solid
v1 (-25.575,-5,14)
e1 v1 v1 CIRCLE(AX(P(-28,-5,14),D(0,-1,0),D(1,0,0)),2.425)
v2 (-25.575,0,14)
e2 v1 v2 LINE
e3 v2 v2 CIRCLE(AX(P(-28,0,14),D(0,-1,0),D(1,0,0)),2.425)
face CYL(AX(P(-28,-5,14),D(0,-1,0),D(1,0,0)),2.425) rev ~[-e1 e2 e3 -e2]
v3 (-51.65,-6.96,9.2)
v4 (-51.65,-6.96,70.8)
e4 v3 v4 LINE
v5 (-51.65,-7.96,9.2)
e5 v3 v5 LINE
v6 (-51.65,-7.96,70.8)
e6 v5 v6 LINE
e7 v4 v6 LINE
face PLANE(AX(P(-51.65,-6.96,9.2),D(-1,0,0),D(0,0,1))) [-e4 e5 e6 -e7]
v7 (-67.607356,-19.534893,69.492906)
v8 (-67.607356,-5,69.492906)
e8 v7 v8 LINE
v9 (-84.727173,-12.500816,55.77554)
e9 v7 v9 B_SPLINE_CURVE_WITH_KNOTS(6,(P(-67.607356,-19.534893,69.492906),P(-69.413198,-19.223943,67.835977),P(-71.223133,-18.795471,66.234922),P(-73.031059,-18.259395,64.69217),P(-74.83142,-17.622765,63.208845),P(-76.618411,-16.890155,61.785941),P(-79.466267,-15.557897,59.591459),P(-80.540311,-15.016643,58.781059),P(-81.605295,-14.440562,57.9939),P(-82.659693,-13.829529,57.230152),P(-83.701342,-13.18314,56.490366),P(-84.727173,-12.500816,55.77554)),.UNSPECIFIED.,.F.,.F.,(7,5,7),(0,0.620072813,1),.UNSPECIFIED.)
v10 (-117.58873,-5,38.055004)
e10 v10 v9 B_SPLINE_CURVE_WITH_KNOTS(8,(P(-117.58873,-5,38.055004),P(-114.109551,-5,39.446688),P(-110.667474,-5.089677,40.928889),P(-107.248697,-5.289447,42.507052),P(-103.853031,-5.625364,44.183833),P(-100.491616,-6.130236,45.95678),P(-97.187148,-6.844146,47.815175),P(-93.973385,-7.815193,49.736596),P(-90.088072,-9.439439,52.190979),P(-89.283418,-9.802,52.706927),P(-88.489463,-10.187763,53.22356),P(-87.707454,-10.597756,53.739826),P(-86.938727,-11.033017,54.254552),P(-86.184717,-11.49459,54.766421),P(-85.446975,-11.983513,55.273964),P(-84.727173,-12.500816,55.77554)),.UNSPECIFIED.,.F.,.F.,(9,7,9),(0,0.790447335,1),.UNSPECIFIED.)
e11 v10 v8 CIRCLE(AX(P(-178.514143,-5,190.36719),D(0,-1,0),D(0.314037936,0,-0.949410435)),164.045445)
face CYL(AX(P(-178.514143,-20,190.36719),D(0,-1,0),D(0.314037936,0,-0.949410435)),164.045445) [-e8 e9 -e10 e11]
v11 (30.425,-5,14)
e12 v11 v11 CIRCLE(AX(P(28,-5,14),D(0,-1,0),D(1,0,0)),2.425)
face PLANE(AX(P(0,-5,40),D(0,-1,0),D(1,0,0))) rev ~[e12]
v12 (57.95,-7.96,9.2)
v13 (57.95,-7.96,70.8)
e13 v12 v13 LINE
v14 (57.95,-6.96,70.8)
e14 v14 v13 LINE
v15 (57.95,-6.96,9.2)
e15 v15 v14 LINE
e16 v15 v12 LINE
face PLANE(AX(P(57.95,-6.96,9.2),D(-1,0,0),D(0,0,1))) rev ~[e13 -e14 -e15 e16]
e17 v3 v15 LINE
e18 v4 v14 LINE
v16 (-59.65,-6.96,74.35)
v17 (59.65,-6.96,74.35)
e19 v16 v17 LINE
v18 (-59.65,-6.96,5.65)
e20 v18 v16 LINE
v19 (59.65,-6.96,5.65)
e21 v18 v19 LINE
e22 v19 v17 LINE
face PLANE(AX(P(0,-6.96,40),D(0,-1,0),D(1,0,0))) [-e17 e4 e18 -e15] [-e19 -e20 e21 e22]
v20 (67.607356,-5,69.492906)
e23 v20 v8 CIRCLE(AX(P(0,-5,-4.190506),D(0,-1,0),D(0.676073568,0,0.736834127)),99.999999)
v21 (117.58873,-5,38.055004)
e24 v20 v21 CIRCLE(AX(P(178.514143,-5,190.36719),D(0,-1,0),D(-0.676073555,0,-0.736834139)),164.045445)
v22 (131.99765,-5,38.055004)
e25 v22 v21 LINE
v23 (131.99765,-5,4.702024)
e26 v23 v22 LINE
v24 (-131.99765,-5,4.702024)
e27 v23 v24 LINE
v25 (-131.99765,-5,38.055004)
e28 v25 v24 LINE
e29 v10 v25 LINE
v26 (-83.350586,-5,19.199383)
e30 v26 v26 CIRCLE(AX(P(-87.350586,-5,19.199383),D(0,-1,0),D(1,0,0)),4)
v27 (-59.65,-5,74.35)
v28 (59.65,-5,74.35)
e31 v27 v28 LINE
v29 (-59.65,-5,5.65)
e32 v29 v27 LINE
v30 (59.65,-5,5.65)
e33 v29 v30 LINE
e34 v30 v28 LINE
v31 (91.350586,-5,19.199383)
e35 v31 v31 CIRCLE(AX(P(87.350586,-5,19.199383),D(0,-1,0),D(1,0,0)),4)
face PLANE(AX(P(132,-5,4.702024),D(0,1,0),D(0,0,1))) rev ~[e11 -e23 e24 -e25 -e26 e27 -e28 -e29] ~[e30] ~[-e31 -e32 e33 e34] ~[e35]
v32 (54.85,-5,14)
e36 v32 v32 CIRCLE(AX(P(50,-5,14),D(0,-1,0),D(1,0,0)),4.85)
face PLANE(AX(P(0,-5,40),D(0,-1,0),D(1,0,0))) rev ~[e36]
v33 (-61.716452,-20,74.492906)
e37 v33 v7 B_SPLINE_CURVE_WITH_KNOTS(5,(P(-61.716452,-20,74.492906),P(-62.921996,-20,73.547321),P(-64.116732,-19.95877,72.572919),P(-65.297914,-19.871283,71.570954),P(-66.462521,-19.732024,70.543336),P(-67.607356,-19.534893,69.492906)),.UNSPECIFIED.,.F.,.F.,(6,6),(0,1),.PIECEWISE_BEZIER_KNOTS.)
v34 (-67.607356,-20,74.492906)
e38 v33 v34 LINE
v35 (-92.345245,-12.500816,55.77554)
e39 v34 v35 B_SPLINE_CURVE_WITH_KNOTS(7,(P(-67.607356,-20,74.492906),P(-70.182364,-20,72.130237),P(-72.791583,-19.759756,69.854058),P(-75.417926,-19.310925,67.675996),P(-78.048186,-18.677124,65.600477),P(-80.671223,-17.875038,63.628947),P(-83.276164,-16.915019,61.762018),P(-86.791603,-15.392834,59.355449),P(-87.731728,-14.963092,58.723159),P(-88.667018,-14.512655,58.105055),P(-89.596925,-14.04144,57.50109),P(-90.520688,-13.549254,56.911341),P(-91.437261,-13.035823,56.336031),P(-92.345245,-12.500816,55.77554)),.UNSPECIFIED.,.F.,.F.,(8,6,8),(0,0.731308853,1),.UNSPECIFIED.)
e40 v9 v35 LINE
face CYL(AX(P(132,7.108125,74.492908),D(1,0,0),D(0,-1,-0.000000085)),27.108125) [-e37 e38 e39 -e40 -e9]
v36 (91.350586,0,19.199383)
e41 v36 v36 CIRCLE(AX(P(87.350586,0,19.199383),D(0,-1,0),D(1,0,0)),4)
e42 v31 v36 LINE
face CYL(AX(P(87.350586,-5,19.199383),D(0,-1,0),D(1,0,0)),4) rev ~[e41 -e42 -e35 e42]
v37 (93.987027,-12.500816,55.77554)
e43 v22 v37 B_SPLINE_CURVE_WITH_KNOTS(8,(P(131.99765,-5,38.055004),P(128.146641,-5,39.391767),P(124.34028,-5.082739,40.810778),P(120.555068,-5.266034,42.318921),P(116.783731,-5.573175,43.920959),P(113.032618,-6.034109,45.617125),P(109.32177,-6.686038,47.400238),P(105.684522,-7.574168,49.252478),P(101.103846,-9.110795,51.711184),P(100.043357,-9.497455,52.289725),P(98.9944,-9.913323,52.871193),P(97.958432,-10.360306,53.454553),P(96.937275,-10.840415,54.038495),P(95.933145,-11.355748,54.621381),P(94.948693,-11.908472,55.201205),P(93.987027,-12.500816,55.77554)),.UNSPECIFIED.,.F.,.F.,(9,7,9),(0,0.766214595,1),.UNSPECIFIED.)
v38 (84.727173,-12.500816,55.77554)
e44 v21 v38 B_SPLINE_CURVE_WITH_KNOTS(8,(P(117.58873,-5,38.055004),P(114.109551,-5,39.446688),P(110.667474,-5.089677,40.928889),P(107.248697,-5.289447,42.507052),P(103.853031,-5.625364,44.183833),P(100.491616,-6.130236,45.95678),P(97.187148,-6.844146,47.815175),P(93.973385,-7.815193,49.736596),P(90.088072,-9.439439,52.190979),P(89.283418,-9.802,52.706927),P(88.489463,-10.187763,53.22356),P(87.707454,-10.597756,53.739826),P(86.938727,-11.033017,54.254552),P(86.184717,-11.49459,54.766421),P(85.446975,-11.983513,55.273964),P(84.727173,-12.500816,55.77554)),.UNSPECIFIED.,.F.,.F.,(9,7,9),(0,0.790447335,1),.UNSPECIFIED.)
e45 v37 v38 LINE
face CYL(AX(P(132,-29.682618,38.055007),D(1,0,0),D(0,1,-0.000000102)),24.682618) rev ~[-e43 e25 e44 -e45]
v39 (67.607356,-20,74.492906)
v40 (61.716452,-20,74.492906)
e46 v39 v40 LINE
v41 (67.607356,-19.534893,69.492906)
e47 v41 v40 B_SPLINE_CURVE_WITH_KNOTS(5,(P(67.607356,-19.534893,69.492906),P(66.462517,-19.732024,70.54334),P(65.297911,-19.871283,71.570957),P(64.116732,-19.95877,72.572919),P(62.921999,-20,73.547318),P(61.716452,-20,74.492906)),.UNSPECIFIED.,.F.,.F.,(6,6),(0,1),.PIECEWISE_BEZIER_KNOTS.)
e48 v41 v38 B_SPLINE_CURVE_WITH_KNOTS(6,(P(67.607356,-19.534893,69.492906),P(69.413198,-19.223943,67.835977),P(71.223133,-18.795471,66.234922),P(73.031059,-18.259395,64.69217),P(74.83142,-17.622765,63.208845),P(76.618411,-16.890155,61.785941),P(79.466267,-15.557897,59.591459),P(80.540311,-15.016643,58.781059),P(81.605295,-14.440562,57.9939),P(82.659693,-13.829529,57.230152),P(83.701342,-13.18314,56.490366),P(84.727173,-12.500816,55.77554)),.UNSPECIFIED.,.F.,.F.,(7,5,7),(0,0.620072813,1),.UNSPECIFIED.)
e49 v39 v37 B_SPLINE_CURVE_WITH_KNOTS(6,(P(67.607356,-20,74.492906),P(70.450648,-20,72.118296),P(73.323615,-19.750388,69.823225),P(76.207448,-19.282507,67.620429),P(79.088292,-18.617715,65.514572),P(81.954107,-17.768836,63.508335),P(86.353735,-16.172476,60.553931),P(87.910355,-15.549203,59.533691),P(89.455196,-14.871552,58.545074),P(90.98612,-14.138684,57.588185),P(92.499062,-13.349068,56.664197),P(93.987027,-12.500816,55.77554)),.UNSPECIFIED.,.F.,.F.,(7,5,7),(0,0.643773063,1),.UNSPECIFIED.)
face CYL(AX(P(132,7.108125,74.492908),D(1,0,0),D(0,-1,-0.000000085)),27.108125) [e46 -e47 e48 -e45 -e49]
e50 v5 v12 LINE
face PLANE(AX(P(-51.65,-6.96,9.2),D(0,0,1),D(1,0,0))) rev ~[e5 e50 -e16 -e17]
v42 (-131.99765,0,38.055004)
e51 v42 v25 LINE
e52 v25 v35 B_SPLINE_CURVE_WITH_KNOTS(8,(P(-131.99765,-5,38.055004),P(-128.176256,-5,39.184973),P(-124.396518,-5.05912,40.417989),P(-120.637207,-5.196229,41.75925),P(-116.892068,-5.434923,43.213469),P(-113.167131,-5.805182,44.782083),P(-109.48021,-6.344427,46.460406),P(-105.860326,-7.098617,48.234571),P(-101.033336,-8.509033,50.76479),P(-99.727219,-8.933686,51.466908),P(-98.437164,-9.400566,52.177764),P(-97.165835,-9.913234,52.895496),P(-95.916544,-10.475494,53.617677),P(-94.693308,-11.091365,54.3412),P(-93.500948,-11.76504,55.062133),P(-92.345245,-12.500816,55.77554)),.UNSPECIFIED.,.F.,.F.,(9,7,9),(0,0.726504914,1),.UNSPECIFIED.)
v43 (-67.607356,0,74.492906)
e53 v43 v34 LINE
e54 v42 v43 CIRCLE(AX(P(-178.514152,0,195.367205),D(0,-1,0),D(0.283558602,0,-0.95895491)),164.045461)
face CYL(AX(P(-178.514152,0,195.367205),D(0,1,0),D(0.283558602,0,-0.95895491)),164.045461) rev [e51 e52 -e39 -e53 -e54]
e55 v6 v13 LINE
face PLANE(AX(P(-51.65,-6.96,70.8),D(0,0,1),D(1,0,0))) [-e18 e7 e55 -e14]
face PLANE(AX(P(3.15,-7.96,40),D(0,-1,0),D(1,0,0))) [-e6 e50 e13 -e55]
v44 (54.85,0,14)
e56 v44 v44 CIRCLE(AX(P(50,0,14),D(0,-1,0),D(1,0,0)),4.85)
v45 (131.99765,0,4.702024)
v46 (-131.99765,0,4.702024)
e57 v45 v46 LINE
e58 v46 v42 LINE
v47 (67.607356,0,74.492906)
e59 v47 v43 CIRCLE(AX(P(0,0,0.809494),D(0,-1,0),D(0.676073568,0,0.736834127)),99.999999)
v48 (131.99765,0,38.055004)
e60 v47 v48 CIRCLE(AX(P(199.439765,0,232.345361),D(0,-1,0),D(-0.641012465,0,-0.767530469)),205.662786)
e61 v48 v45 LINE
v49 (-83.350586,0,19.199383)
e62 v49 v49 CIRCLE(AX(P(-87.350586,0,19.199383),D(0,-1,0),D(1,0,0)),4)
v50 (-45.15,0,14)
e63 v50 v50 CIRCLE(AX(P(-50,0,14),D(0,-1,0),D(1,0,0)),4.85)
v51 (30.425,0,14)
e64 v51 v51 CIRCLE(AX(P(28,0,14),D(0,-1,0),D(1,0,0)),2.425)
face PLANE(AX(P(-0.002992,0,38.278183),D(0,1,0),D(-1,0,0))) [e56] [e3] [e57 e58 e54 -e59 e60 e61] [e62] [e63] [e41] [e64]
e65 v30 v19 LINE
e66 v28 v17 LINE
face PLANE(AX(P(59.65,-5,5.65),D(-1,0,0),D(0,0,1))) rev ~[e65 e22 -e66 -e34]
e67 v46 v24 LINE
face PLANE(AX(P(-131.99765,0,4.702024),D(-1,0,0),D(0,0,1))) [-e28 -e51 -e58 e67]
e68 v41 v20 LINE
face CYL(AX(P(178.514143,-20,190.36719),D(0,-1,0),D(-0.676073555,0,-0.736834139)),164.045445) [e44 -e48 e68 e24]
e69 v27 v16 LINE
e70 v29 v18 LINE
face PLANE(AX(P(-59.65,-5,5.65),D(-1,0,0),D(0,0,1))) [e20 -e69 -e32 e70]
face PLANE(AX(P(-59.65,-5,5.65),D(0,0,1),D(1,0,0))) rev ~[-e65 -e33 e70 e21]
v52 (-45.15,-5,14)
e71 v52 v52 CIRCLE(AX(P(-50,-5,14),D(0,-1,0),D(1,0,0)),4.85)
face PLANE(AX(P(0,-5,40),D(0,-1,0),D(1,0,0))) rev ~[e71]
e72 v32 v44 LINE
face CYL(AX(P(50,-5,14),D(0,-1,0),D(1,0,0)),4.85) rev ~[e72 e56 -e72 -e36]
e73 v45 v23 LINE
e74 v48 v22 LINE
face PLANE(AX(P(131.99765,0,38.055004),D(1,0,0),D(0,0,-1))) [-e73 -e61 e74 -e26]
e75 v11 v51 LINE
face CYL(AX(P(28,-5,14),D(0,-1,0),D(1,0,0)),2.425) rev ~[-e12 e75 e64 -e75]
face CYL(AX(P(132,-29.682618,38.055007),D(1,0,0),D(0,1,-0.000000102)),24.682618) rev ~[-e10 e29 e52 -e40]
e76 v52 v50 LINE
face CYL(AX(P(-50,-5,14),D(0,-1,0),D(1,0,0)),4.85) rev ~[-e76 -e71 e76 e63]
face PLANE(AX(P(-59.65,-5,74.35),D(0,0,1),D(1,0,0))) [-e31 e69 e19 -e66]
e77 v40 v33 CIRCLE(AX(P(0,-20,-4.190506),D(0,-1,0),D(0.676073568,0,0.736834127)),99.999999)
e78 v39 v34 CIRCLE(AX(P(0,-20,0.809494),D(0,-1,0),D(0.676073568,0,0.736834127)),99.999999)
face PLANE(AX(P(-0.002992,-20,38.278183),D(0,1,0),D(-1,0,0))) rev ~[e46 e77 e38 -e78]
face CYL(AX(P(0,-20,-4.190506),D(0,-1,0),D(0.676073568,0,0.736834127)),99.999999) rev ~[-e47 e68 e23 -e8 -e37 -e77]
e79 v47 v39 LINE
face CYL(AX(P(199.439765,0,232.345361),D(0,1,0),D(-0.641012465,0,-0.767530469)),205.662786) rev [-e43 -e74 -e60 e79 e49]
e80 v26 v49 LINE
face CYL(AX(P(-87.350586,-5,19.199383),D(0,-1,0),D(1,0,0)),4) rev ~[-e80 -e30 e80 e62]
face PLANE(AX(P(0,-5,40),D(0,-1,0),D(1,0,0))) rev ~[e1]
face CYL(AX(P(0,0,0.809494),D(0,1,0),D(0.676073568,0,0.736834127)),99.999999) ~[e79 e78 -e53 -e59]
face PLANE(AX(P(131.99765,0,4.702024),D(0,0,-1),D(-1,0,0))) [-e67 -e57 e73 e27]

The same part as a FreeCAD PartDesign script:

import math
import FreeCAD as App
import Part
import Sketcher

V = App.Vector
Q = App.Units.Quantity

doc = App.newDocument("Part")
body = doc.addObject("PartDesign::Body", "Body")

# Sketch on XZ plane
sketch1 = doc.addObject("Sketcher::SketchObject", "Sketch")
body.addObject(sketch1)
sketch1.AttachmentSupport = (doc.XZ_Plane, [""])
sketch1.MapMode = "FlatFace"
sketch1.addGeometry(Part.ArcOfCircle(Part.Circle(V(-179, 195, 0), V(0, 0, 1), 164), math.radians(-74), math.radians(-47)), False)
sketch1.addGeometry(Part.LineSegment(V(-132, 38, 0), V(-132, 5, 0)), False)
sketch1.addGeometry(Part.LineSegment(V(-132, 5, 0), V(132, 5, 0)), False)
sketch1.addGeometry(Part.LineSegment(V(132, 5, 0), V(132, 38, 0)), False)
sketch1.addGeometry(Part.ArcOfCircle(Part.Circle(V(199, 232, 0), V(0, 0, 1), 206), math.radians(-130), math.radians(-109)), False)
sketch1.addGeometry(Part.ArcOfCircle(Part.Circle(V(0, 1, 0), V(0, 0, 1), 100), math.radians(47), math.radians(133)), False)
sketch1.addConstraint(Sketcher.Constraint("Coincident", 0, 1, 1, 1))
sketch1.addConstraint(Sketcher.Constraint("Coincident", 1, 2, 2, 1))
sketch1.addConstraint(Sketcher.Constraint("Coincident", 2, 2, 3, 1))
sketch1.addConstraint(Sketcher.Constraint("Coincident", 3, 2, 4, 2))
sketch1.addConstraint(Sketcher.Constraint("Coincident", 4, 1, 5, 1))
sketch1.addConstraint(Sketcher.Constraint("Tangent", 5, 2, 0, 2))
sketch1.addConstraint(Sketcher.Constraint("Vertical", 1))
sketch1.addConstraint(Sketcher.Constraint("Horizontal", 2))
sketch1.addConstraint(Sketcher.Constraint("Vertical", 3))
sketch1.addConstraint(Sketcher.Constraint("Symmetric", 0, 1, 3, 2, -2))
sketch1.addConstraint(Sketcher.Constraint("Symmetric", 4, 1, 5, 2, -2))
sketch1.addConstraint(Sketcher.Constraint("Radius", 5, Q("99.999999 mm")))
sketch1.addConstraint(Sketcher.Constraint("Radius", 0, Q("164.045461 mm")))
sketch1.addConstraint(Sketcher.Constraint("DistanceX", 2, 1, 2, 2, Q("263.9953 mm")))
sketch1.addConstraint(Sketcher.Constraint("Radius", 4, Q("205.662786 mm")))
sketch1.addConstraint(Sketcher.Constraint("DistanceY", 1, 2, 1, 1, Q("33.35298 mm")))
sketch1.addConstraint(Sketcher.Constraint("DistanceX", 0, 3, 0, 1, Q("46.516502 mm")))
sketch1.addConstraint(Sketcher.Constraint("DistanceY", -1, 1, 4, 3, Q("232.345361 mm")))
pad1 = doc.addObject("PartDesign::Pad", "Pad")
body.addObject(pad1)
pad1.Profile = sketch1
pad1.Length = 20

# Sketch on XZ plane
sketch2 = doc.addObject("Sketcher::SketchObject", "Sketch001")
body.addObject(sketch2)
sketch2.AttachmentSupport = (doc.XZ_Plane, [""])
sketch2.MapMode = "FlatFace"
sketch2.AttachmentOffset = App.Placement(V(0, 0, 20), App.Rotation())
sketch2.addGeometry(Part.LineSegment(V(-127, -34, 0), V(127, -34, 0)), False)
sketch2.addGeometry(Part.LineSegment(V(127, -34, 0), V(127, 35, 0)), False)
sketch2.addGeometry(Part.ArcOfCircle(Part.Circle(V(179, 190, 0), V(0, 0, 1), 164), math.radians(-133), math.radians(-108)), False)
sketch2.addGeometry(Part.ArcOfCircle(Part.Circle(V(0, -4, 0), V(0, 0, 1), 100), math.radians(47), math.radians(133)), False)
sketch2.addGeometry(Part.ArcOfCircle(Part.Circle(V(-179, 190, 0), V(0, 0, 1), 164), math.radians(-72), math.radians(-47)), False)
sketch2.addGeometry(Part.LineSegment(V(-127, 35, 0), V(-127, -34, 0)), False)
sketch2.addConstraint(Sketcher.Constraint("Coincident", 0, 2, 1, 1))
sketch2.addConstraint(Sketcher.Constraint("Coincident", 1, 2, 2, 2))
sketch2.addConstraint(Sketcher.Constraint("Tangent", 2, 1, 3, 1))
sketch2.addConstraint(Sketcher.Constraint("Tangent", 3, 2, 4, 2))
sketch2.addConstraint(Sketcher.Constraint("Coincident", 4, 1, 5, 1))
sketch2.addConstraint(Sketcher.Constraint("Coincident", 5, 2, 0, 1))
sketch2.addConstraint(Sketcher.Constraint("Horizontal", 0))
sketch2.addConstraint(Sketcher.Constraint("Vertical", 1))
sketch2.addConstraint(Sketcher.Constraint("Vertical", 5))
sketch2.addConstraint(Sketcher.Constraint("Equal", 2, 4))
sketch2.addConstraint(Sketcher.Constraint("Symmetric", 2, 3, 4, 3, -2))
sketch2.addConstraint(Sketcher.Constraint("Horizontal", 1, 2, 4, 1))
sketch2.addConstraint(Sketcher.Constraint("Radius", 3, Q("99.999999 mm")))
sketch2.addConstraint(Sketcher.Constraint("DistanceX", 0, 1, 0, 2, Q("253.9953 mm")))
sketch2.addConstraint(Sketcher.Constraint("Radius", 2, Q("164.045445 mm")))
sketch2.addConstraint(Sketcher.Constraint("DistanceX", 4, 3, 2, 1, Q("246.121499 mm")))
sketch2.addConstraint(Sketcher.Constraint("DistanceY", 1, 1, 1, 2, Q("68.932677 mm")))
sketch2.addConstraint(Sketcher.Constraint("DistanceY", -1, 1, 2, 3, Q("190.36719 mm")))
pocket1 = doc.addObject("PartDesign::Pocket", "Pocket")
body.addObject(pocket1)
pocket1.Profile = sketch2
pocket1.Length = 15

# Sketch on YZ plane
sketch3 = doc.addObject("Sketcher::SketchObject", "Sketch002")
body.addObject(sketch3)
sketch3.AttachmentSupport = (doc.YZ_Plane, [""])
sketch3.MapMode = "FlatFace"
sketch3.AttachmentOffset = App.Placement(V(0, 0, 132), App.Rotation())
sketch3.addGeometry(Part.LineSegment(V(-20, 5, 0), V(-5, 5, 0)), False)
sketch3.addGeometry(Part.LineSegment(V(-5, 5, 0), V(-5, 38, 0)), False)
sketch3.addGeometry(Part.ArcOfCircle(Part.Circle(V(-30, 38, 0), V(0, 0, 1), 25), math.radians(0), math.radians(46)), False)
sketch3.addGeometry(Part.ArcOfCircle(Part.Circle(V(7, 74, 0), V(0, 0, 1), 27), math.radians(-180), math.radians(-136)), False)
sketch3.addGeometry(Part.LineSegment(V(-20, 74, 0), V(-20, 5, 0)), False)
sketch3.addConstraint(Sketcher.Constraint("Coincident", 0, 2, 1, 1))
sketch3.addConstraint(Sketcher.Constraint("Tangent", 1, 2, 2, 1))
sketch3.addConstraint(Sketcher.Constraint("Coincident", 2, 2, 3, 2))
sketch3.addConstraint(Sketcher.Constraint("Tangent", 3, 1, 4, 1))
sketch3.addConstraint(Sketcher.Constraint("Coincident", 4, 2, 0, 1))
sketch3.addConstraint(Sketcher.Constraint("Horizontal", 0))
sketch3.addConstraint(Sketcher.Constraint("Vertical", 1))
sketch3.addConstraint(Sketcher.Constraint("Vertical", 4))
sketch3.addConstraint(Sketcher.Constraint("DistanceX", 0, 1, 0, 2, Q("15 mm")))
sketch3.addConstraint(Sketcher.Constraint("DistanceX", 0, 2, -1, 1, Q("5 mm")))
sketch3.addConstraint(Sketcher.Constraint("Radius", 2, Q("24.682618 mm")))
sketch3.addConstraint(Sketcher.Constraint("Radius", 3, Q("27.108125 mm")))
sketch3.addConstraint(Sketcher.Constraint("DistanceY", 1, 1, 1, 2, Q("33.35298 mm")))
sketch3.addConstraint(Sketcher.Constraint("DistanceY", 2, 3, 3, 3, Q("36.437902 mm")))
sketch3.addConstraint(Sketcher.Constraint("DistanceY", -1, 1, 3, 3, Q("74.492908 mm")))
pocket2 = doc.addObject("PartDesign::Pocket", "Pocket001")
body.addObject(pocket2)
pocket2.Profile = sketch3
pocket2.Type = "ThroughAll"

# Sketch on XZ plane
sketch4 = doc.addObject("Sketcher::SketchObject", "Sketch003")
body.addObject(sketch4)
sketch4.AttachmentSupport = (doc.XZ_Plane, [""])
sketch4.MapMode = "FlatFace"
sketch4.AttachmentOffset = App.Placement(V(0, 0, 5), App.Rotation())
sketch4.addGeometry(Part.Circle(V(-50, 14, 0), V(0, 0, 1), 4.8), False)
sketch4.addGeometry(Part.Circle(V(-28, 14, 0), V(0, 0, 1), 2.4), False)
sketch4.addGeometry(Part.Circle(V(28, 14, 0), V(0, 0, 1), 2.4), False)
sketch4.addGeometry(Part.Circle(V(50, 14, 0), V(0, 0, 1), 4.8), False)
sketch4.addGeometry(Part.Circle(V(-87.4, 19.2, 0), V(0, 0, 1), 4), False)
sketch4.addGeometry(Part.Circle(V(87.4, 19.2, 0), V(0, 0, 1), 4), False)
sketch4.addConstraint(Sketcher.Constraint("Equal", 1, 2))
sketch4.addConstraint(Sketcher.Constraint("Equal", 0, 3))
sketch4.addConstraint(Sketcher.Constraint("Equal", 4, 5))
sketch4.addConstraint(Sketcher.Constraint("Symmetric", 1, 3, 2, 3, -2))
sketch4.addConstraint(Sketcher.Constraint("Symmetric", 0, 3, 3, 3, -2))
sketch4.addConstraint(Sketcher.Constraint("Symmetric", 4, 3, 5, 3, -2))
sketch4.addConstraint(Sketcher.Constraint("Horizontal", 0, 3, 1, 3))
sketch4.addConstraint(Sketcher.Constraint("Diameter", 4, Q("8 mm")))
sketch4.addConstraint(Sketcher.Constraint("Diameter", 0, Q("9.7 mm")))
sketch4.addConstraint(Sketcher.Constraint("Diameter", 1, Q("4.85 mm")))
sketch4.addConstraint(Sketcher.Constraint("DistanceX", 0, 3, -1, 1, Q("50 mm")))
sketch4.addConstraint(Sketcher.Constraint("DistanceY", -1, 1, 0, 3, Q("14 mm")))
sketch4.addConstraint(Sketcher.Constraint("DistanceX", 1, 3, -1, 1, Q("28 mm")))
sketch4.addConstraint(Sketcher.Constraint("DistanceX", 4, 3, -1, 1, Q("87.350586 mm")))
sketch4.addConstraint(Sketcher.Constraint("DistanceY", -1, 1, 4, 3, Q("19.199383 mm")))
pocket3 = doc.addObject("PartDesign::Pocket", "Pocket002")
body.addObject(pocket3)
pocket3.Profile = sketch4
pocket3.Type = "ThroughAll"

# Sketch on XZ plane
sketch5 = doc.addObject("Sketcher::SketchObject", "Sketch004")
body.addObject(sketch5)
sketch5.AttachmentSupport = (doc.XZ_Plane, [""])
sketch5.MapMode = "FlatFace"
sketch5.AttachmentOffset = App.Placement(V(0, 0, 5), App.Rotation())
sketch5.addGeometry(Part.LineSegment(V(-60, 74, 0), V(-60, 6, 0)), False)
sketch5.addGeometry(Part.LineSegment(V(-60, 6, 0), V(60, 6, 0)), False)
sketch5.addGeometry(Part.LineSegment(V(60, 6, 0), V(60, 74, 0)), False)
sketch5.addGeometry(Part.LineSegment(V(60, 74, 0), V(-60, 74, 0)), False)
sketch5.addConstraint(Sketcher.Constraint("Coincident", 0, 2, 1, 1))
sketch5.addConstraint(Sketcher.Constraint("Coincident", 1, 2, 2, 1))
sketch5.addConstraint(Sketcher.Constraint("Coincident", 2, 2, 3, 1))
sketch5.addConstraint(Sketcher.Constraint("Coincident", 3, 2, 0, 1))
sketch5.addConstraint(Sketcher.Constraint("Vertical", 0))
sketch5.addConstraint(Sketcher.Constraint("Horizontal", 1))
sketch5.addConstraint(Sketcher.Constraint("Vertical", 2))
sketch5.addConstraint(Sketcher.Constraint("Horizontal", 3))
sketch5.addConstraint(Sketcher.Constraint("DistanceX", 1, 1, 1, 2, Q("119.3 mm")))
sketch5.addConstraint(Sketcher.Constraint("DistanceY", 0, 2, 0, 1, Q("68.7 mm")))
sketch5.addConstraint(Sketcher.Constraint("DistanceX", 0, 2, -1, 1, Q("59.65 mm")))
sketch5.addConstraint(Sketcher.Constraint("DistanceY", -1, 1, 0, 2, Q("5.65 mm")))
pad2 = doc.addObject("PartDesign::Pad", "Pad001")
body.addObject(pad2)
pad2.Profile = sketch5
pad2.Length = 1.96

# Sketch on XZ plane
sketch6 = doc.addObject("Sketcher::SketchObject", "Sketch005")
body.addObject(sketch6)
sketch6.AttachmentSupport = (doc.XZ_Plane, [""])
sketch6.MapMode = "FlatFace"
sketch6.AttachmentOffset = App.Placement(V(0, 0, 6.96), App.Rotation())
sketch6.addGeometry(Part.LineSegment(V(-52, 71, 0), V(-52, 9, 0)), False)
sketch6.addGeometry(Part.LineSegment(V(-52, 9, 0), V(58, 9, 0)), False)
sketch6.addGeometry(Part.LineSegment(V(58, 9, 0), V(58, 71, 0)), False)
sketch6.addGeometry(Part.LineSegment(V(58, 71, 0), V(-52, 71, 0)), False)
sketch6.addConstraint(Sketcher.Constraint("Coincident", 0, 2, 1, 1))
sketch6.addConstraint(Sketcher.Constraint("Coincident", 1, 2, 2, 1))
sketch6.addConstraint(Sketcher.Constraint("Coincident", 2, 2, 3, 1))
sketch6.addConstraint(Sketcher.Constraint("Coincident", 3, 2, 0, 1))
sketch6.addConstraint(Sketcher.Constraint("Vertical", 0))
sketch6.addConstraint(Sketcher.Constraint("Horizontal", 1))
sketch6.addConstraint(Sketcher.Constraint("Vertical", 2))
sketch6.addConstraint(Sketcher.Constraint("Horizontal", 3))
sketch6.addConstraint(Sketcher.Constraint("DistanceX", 1, 1, 1, 2, Q("109.6 mm")))
sketch6.addConstraint(Sketcher.Constraint("DistanceY", 0, 2, 0, 1, Q("61.6 mm")))
sketch6.addConstraint(Sketcher.Constraint("DistanceY", -1, 1, 0, 2, Q("9.2 mm")))
sketch6.addConstraint(Sketcher.Constraint("DistanceX", 0, 2, -1, 1, Q("51.65 mm")))
pad3 = doc.addObject("PartDesign::Pad", "Pad002")
body.addObject(pad3)
pad3.Profile = sketch6
pad3.Length = 1

doc.recompute()
